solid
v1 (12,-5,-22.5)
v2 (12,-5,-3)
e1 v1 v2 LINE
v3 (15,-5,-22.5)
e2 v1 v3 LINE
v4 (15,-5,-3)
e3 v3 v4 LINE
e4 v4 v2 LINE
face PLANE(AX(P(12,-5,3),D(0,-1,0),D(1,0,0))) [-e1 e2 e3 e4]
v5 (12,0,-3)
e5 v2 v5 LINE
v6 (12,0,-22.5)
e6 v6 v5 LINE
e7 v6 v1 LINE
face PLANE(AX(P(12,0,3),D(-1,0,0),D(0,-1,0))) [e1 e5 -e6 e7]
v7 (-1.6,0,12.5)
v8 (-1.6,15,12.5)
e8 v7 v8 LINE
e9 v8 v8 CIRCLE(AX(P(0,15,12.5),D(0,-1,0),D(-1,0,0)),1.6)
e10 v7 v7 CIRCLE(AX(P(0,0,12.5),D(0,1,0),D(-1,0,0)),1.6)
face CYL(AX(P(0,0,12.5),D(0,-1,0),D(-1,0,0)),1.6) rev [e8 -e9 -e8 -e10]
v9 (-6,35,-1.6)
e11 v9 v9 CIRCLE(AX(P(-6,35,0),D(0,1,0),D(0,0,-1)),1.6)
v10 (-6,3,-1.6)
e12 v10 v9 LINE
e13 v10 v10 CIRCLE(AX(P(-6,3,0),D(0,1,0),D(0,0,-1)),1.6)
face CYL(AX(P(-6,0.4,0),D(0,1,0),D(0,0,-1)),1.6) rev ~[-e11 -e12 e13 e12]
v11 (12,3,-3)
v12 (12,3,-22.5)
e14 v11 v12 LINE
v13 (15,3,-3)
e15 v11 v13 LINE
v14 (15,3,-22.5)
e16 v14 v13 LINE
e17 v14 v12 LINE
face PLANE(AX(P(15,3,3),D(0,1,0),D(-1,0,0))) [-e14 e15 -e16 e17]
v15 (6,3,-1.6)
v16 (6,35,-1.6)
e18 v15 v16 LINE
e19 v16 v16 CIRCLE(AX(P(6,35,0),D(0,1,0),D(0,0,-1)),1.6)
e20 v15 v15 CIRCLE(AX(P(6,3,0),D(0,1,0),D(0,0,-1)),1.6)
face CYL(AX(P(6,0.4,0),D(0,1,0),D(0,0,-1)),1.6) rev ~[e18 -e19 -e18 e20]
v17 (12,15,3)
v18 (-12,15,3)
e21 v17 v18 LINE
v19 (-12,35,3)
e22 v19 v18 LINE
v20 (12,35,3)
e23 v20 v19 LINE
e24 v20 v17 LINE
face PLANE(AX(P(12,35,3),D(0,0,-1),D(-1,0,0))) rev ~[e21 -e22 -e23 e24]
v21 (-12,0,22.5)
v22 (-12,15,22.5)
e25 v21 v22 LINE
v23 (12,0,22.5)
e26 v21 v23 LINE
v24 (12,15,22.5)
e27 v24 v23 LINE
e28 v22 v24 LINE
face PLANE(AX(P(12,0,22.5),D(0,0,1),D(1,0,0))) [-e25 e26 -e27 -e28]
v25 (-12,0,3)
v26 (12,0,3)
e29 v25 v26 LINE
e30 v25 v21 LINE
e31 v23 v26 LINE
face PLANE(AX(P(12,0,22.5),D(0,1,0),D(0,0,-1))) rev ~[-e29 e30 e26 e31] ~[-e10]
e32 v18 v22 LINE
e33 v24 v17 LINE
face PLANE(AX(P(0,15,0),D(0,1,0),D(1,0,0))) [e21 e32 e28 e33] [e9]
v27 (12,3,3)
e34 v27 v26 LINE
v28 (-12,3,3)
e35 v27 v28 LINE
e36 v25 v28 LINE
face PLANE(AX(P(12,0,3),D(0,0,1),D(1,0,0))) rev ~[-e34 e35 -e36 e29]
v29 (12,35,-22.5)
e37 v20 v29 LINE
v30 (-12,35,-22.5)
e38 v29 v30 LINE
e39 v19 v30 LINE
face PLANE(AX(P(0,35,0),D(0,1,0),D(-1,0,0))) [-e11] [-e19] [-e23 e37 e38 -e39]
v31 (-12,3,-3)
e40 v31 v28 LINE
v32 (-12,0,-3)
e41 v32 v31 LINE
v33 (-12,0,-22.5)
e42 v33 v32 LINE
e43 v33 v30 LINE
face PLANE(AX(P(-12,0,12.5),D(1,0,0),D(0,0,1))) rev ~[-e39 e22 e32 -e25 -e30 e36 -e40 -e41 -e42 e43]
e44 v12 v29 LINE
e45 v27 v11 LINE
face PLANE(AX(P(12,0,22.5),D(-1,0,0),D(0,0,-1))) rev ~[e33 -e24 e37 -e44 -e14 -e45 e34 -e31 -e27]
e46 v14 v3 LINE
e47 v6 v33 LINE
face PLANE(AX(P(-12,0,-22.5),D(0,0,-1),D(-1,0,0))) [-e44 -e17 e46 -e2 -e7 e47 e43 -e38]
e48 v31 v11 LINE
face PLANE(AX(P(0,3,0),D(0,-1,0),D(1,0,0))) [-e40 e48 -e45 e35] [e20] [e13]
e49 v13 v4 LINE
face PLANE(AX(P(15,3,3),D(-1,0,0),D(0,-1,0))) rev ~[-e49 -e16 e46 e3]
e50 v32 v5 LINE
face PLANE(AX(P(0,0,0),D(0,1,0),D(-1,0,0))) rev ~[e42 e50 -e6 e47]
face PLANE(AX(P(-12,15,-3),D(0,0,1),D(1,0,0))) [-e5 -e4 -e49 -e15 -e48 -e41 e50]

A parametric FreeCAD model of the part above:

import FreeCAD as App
import Part
import Sketcher
Q = App.Units.Quantity

doc = App.newDocument("Part")
body = doc.addObject("PartDesign::Body", "Body")

sketch1 = doc.addObject("Sketcher::SketchObject", "Sketch")
body.addObject(sketch1)
sketch1.AttachmentSupport = (doc.XZ_Plane, [""])
sketch1.MapMode = "FlatFace"
sketch1.addGeometry([
    Part.LineSegment(App.Vector(-12, 22.5, 0), App.Vector(12, 22.5, 0)),
    Part.LineSegment(App.Vector(12, 22.5, 0), App.Vector(12, -22.5, 0)),
    Part.LineSegment(App.Vector(12, -22.5, 0), App.Vector(-12, -22.5, 0)),
    Part.LineSegment(App.Vector(-12, -22.5, 0), App.Vector(-12, 22.5, 0)),
    Part.Circle(App.Vector(0, 12.5, 0), App.Vector(0, 0, 1), 1.6),
], False)
sketch1.addConstraint([
    Sketcher.Constraint("Coincident", 0, 2, 1, 1),
    Sketcher.Constraint("Coincident", 1, 2, 2, 1),
    Sketcher.Constraint("Coincident", 2, 2, 3, 1),
    Sketcher.Constraint("Coincident", 3, 2, 0, 1),
    Sketcher.Constraint("Horizontal", 0),
    Sketcher.Constraint("Vertical", 1),
    Sketcher.Constraint("Horizontal", 2),
    Sketcher.Constraint("Vertical", 3),
    Sketcher.Constraint("Symmetric", 0, 2, 2, 2, -1, 1),
    Sketcher.Constraint("PointOnObject", 4, 3, -2),
    Sketcher.Constraint("Diameter", 4, Q("3.2 mm")),
    Sketcher.Constraint("DistanceX", 0, 1, 0, 2, Q("24 mm")),
    Sketcher.Constraint("DistanceY", 1, 2, 1, 1, Q("45 mm")),
    Sketcher.Constraint("DistanceY", 4, 3, 0, 2, Q("10 mm")),
])
pad1 = doc.addObject("PartDesign::Pad", "Pad")
body.addObject(pad1)
pad1.Profile = sketch1
pad1.Length = 35
pad1.Reversed = True

sketch2 = doc.addObject("Sketcher::SketchObject", "Sketch001")
body.addObject(sketch2)
sketch2.AttachmentSupport = (doc.XZ_Plane, [""])
sketch2.MapMode = "FlatFace"
sketch2.addGeometry([
    Part.LineSegment(App.Vector(12, -3, 0), App.Vector(12, 3, 0)),
    Part.LineSegment(App.Vector(12, 3, 0), App.Vector(-12, 3, 0)),
    Part.LineSegment(App.Vector(-12, 3, 0), App.Vector(-12, -3, 0)),
    Part.LineSegment(App.Vector(-12, -3, 0), App.Vector(12, -3, 0)),
], False)
sketch2.addConstraint([
    Sketcher.Constraint("Coincident", 0, 2, 1, 1),
    Sketcher.Constraint("Coincident", 1, 2, 2, 1),
    Sketcher.Constraint("Coincident", 2, 2, 3, 1),
    Sketcher.Constraint("Coincident", 3, 2, 0, 1),
    Sketcher.Constraint("Vertical", 0),
    Sketcher.Constraint("Horizontal", 1),
    Sketcher.Constraint("Vertical", 2),
    Sketcher.Constraint("Horizontal", 3),
    Sketcher.Constraint("Symmetric", 0, 2, 2, 2, -1, 1),
    Sketcher.Constraint("DistanceY", 0, 1, 0, 2, Q("6 mm")),
    Sketcher.Constraint("DistanceX", 1, 2, 1, 1, Q("24 mm")),
])
pocket1 = doc.addObject("PartDesign::Pocket", "Pocket")
body.addObject(pocket1)
pocket1.Profile = sketch2
pocket1.Length = 3

sketch3 = doc.addObject("Sketcher::SketchObject", "Sketch002")
body.addObject(sketch3)
sketch3.AttachmentSupport = (doc.XZ_Plane, [""])
sketch3.MapMode = "FlatFace"
sketch3.addGeometry([
    Part.Circle(App.Vector(-6, 0, 0), App.Vector(0, 0, 1), 1.6),
    Part.Circle(App.Vector(6, 0, 0), App.Vector(0, 0, 1), 1.6),
], False)
sketch3.addConstraint([
    Sketcher.Constraint("Equal", 0, 1),
    Sketcher.Constraint("Symmetric", 0, 3, 1, 3, -1, 1),
    Sketcher.Constraint("PointOnObject", 0, 3, -1),
    Sketcher.Constraint("Diameter", 0, Q("3.2 mm")),
    Sketcher.Constraint("DistanceX", 0, 3, -1, 1, Q("6 mm")),
])
doc.recompute()
hole = doc.addObject("PartDesign::Hole", "Hole")
body.addObject(hole)
hole.Profile = sketch3
hole.ThreadType = "None"
hole.Diameter = 3.2
hole.DepthType = "Dimension"
hole.Depth = 44.75
hole.DrillPoint = "Flat"
hole.HoleCutType = "Countersink"
hole.HoleCutDiameter = 4
hole.HoleCutCountersinkAngle = 90

sketch4 = doc.addObject("Sketcher::SketchObject", "Sketch003")
body.addObject(sketch4)
sketch4.AttachmentSupport = (doc.XZ_Plane, [""])
sketch4.MapMode = "FlatFace"
sketch4.AttachmentOffset = App.Placement(App.Vector(0, 0, -35), App.Rotation())
sketch4.addGeometry([
    Part.LineSegment(App.Vector(-12, 3, 0), App.Vector(-12, 22, 0)),
    Part.LineSegment(App.Vector(-12, 22, 0), App.Vector(12, 22, 0)),
    Part.LineSegment(App.Vector(12, 22, 0), App.Vector(12, 3, 0)),
    Part.LineSegment(App.Vector(12, 3, 0), App.Vector(-12, 3, 0)),
], False)
sketch4.addConstraint([
    Sketcher.Constraint("Coincident", 0, 2, 1, 1),
    Sketcher.Constraint("Coincident", 1, 2, 2, 1),
    Sketcher.Constraint("Coincident", 2, 2, 3, 1),
    Sketcher.Constraint("Coincident", 3, 2, 0, 1),
    Sketcher.Constraint("Vertical", 0),
    Sketcher.Constraint("Horizontal", 1),
    Sketcher.Constraint("Vertical", 2),
    Sketcher.Constraint("Horizontal", 3),
    Sketcher.Constraint("DistanceX", 1, 1, 1, 2, Q("24 mm")),
    Sketcher.Constraint("DistanceY", 0, 1, 0, 2, Q("19.5 mm")),
    Sketcher.Constraint("DistanceX", 0, 2, -1, 1, Q("12 mm")),
    Sketcher.Constraint("DistanceY", -1, 1, 2, 2, Q("3 mm")),
])
pocket2 = doc.addObject("PartDesign::Pocket", "Pocket001")
body.addObject(pocket2)
pocket2.Profile = sketch4
pocket2.Length = 20
pocket2.Reversed = True

sketch5 = doc.addObject("Sketcher::SketchObject", "Sketch004")
body.addObject(sketch5)
sketch5.AttachmentSupport = (doc.YZ_Plane, [""])
sketch5.MapMode = "FlatFace"
sketch5.AttachmentOffset = App.Placement(App.Vector(0, 0, 12), App.Rotation())
sketch5.addGeometry([
    Part.LineSegment(App.Vector(3, 22.5, 0), App.Vector(0, 22.5, 0)),
    Part.LineSegment(App.Vector(0, 22.5, 0), App.Vector(0, 3, 0)),
    Part.LineSegment(App.Vector(0, 3, 0), App.Vector(3, 3, 0)),
    Part.LineSegment(App.Vector(3, 3, 0), App.Vector(3, 22.5, 0)),
], False)
sketch5.addConstraint([
    Sketcher.Constraint("Coincident", 0, 2, 1, 1),
    Sketcher.Constraint("Coincident", 1, 2, 2, 1),
    Sketcher.Constraint("Coincident", 2, 2, 3, 1),
    Sketcher.Constraint("Coincident", 3, 2, 0, 1),
    Sketcher.Constraint("Horizontal", 0),
    Sketcher.Constraint("Vertical", 1),
    Sketcher.Constraint("Horizontal", 2),
    Sketcher.Constraint("Vertical", 3),
    Sketcher.Constraint("PointOnObject", 0, 2, -2),
    Sketcher.Constraint("DistanceX", 0, 2, 0, 1, Q("3 mm")),
    Sketcher.Constraint("DistanceY", -1, 1, 1, 2, Q("3 mm")),
    Sketcher.Constraint("DistanceY", 1, 2, 1, 1, Q("19.5 mm")),
])
pad2 = doc.addObject("PartDesign::Pad", "Pad001")
body.addObject(pad2)
pad2.Profile = sketch5
pad2.Length = 3

sketch6 = doc.addObject("Sketcher::SketchObject", "Sketch005")
body.addObject(sketch6)
sketch6.AttachmentSupport = (doc.XZ_Plane, [""])
sketch6.MapMode = "FlatFace"
sketch6.addGeometry([
    Part.LineSegment(App.Vector(12, 22.5, 0), App.Vector(12, 3, 0)),
    Part.LineSegment(App.Vector(12, 3, 0), App.Vector(15, 3, 0)),
    Part.LineSegment(App.Vector(15, 3, 0), App.Vector(15, 22.5, 0)),
    Part.LineSegment(App.Vector(15, 22.5, 0), App.Vector(12, 22.5, 0)),
], False)
sketch6.addConstraint([
    Sketcher.Constraint("Coincident", 0, 2, 1, 1),
    Sketcher.Constraint("Coincident", 1, 2, 2, 1),
    Sketcher.Constraint("Coincident", 2, 2, 3, 1),
    Sketcher.Constraint("Coincident", 3, 2, 0, 1),
    Sketcher.Constraint("Vertical", 0),
    Sketcher.Constraint("Horizontal", 1),
    Sketcher.Constraint("Vertical", 2),
    Sketcher.Constraint("Horizontal", 3),
    Sketcher.Constraint("DistanceX", 1, 1, 1, 2, Q("3 mm")),
    Sketcher.Constraint("DistanceY", 0, 2, 0, 1, Q("19.5 mm")),
    Sketcher.Constraint("DistanceX", -1, 1, 0, 2, Q("12 mm")),
    Sketcher.Constraint("DistanceY", -1, 1, 0, 2, Q("3 mm")),
])
pad3 = doc.addObject("PartDesign::Pad", "Pad002")
body.addObject(pad3)
pad3.Profile = sketch6
pad3.Length = 5

sketch7 = doc.addObject("Sketcher::SketchObject", "Sketch006")
body.addObject(sketch7)
sketch7.AttachmentSupport = (doc.XY_Plane, [""])
sketch7.MapMode = "FlatFace"
sketch7.AttachmentOffset = App.Placement(App.Vector(0, 0, 3), App.Rotation())
sketch7.addGeometry([
    Part.LineSegment(App.Vector(12, -5, 0), App.Vector(12, 3, 0)),
    Part.LineSegment(App.Vector(12, 3, 0), App.Vector(15, 3, 0)),
    Part.LineSegment(App.Vector(15, 3, 0), App.Vector(15, -5, 0)),
    Part.LineSegment(App.Vector(15, -5, 0), App.Vector(12, -5, 0)),
], False)
sketch7.addConstraint([
    Sketcher.Constraint("Coincident", 0, 2, 1, 1),
    Sketcher.Constraint("Coincident", 1, 2, 2, 1),
    Sketcher.Constraint("Coincident", 2, 2, 3, 1),
    Sketcher.Constraint("Coincident", 3, 2, 0, 1),
    Sketcher.Constraint("Vertical", 0),
    Sketcher.Constraint("Horizontal", 1),
    Sketcher.Constraint("Vertical", 2),
    Sketcher.Constraint("Horizontal", 3),
    Sketcher.Constraint("DistanceX", 1, 1, 1, 2, Q("3 mm")),
    Sketcher.Constraint("DistanceY", 0, 1, 0, 2, Q("8 mm")),
    Sketcher.Constraint("DistanceX", -1, 1, 0, 2, Q("12 mm")),
    Sketcher.Constraint("DistanceY", -1, 1, 0, 2, Q("3 mm")),
])
pad4 = doc.addObject("PartDesign::Pad", "Pad003")
body.addObject(pad4)
pad4.Profile = sketch7
pad4.Length = 25.5
pad4.Reversed = True

sketch8 = doc.addObject("Sketcher::SketchObject", "Sketch007")
body.addObject(sketch8)
sketch8.AttachmentSupport = (doc.XY_Plane, [""])
sketch8.MapMode = "FlatFace"
sketch8.AttachmentOffset = App.Placement(App.Vector(0, 0, 22.5), App.Rotation())
sketch8.addGeometry([
    Part.LineSegment(App.Vector(15, -5, 0), App.Vector(15, 3, 0)),
    Part.LineSegment(App.Vector(15, 3, 0), App.Vector(12, 3, 0)),
    Part.LineSegment(App.Vector(12, 3, 0), App.Vector(12, -5, 0)),
    Part.LineSegment(App.Vector(12, -5, 0), App.Vector(15, -5, 0)),
], False)
sketch8.addConstraint([
    Sketcher.Constraint("Coincident", 0, 2, 1, 1),
    Sketcher.Constraint("Coincident", 1, 2, 2, 1),
    Sketcher.Constraint("Coincident", 2, 2, 3, 1),
    Sketcher.Constraint("Coincident", 3, 2, 0, 1),
    Sketcher.Constraint("Vertical", 0),
    Sketcher.Constraint("Horizontal", 1),
    Sketcher.Constraint("Vertical", 2),
    Sketcher.Constraint("Horizontal", 3),
    Sketcher.Constraint("DistanceX", 1, 2, 1, 1, Q("3 mm")),
    Sketcher.Constraint("DistanceY", 0, 1, 0, 2, Q("8 mm")),
    Sketcher.Constraint("DistanceX", -1, 1, 0, 2, Q("15 mm")),
    Sketcher.Constraint("DistanceY", -1, 1, 0, 2, Q("3 mm")),
])
pocket3 = doc.addObject("PartDesign::Pocket", "Pocket002")
body.addObject(pocket3)
pocket3.Profile = sketch8
pocket3.Length = 25.5

doc.recompute()
